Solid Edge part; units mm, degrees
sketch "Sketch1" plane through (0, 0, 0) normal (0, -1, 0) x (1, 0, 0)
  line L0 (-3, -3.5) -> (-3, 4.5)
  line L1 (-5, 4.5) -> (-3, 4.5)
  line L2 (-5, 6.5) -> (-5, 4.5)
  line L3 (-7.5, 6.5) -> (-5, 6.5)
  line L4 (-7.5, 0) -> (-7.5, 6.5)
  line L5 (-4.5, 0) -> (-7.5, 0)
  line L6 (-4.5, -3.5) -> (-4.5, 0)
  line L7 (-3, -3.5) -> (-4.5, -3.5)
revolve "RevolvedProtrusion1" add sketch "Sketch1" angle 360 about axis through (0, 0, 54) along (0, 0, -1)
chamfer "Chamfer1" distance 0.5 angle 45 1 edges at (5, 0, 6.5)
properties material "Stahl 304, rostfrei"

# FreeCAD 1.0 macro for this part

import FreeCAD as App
import Part
import Sketcher
from FreeCAD import Vector


def edges_at(feature, points):
    """Names of the edges that pass closest to the given points."""
    edges = feature.Shape.Edges
    near = lambda p: min(range(len(edges)), key=lambda i: edges[i].distToShape(Part.Vertex(*p))[0])
    return sorted({f"Edge{near(p) + 1}" for p in points})

doc = App.newDocument("Part")
body = doc.addObject("PartDesign::Body", "Body")

# Sketch on XZ plane
sketch1 = doc.addObject("Sketcher::SketchObject", "Sketch")
body.addObject(sketch1)
sketch1.AttachmentSupport = (doc.XZ_Plane, [""])
sketch1.MapMode = "FlatFace"
sketch1.addGeometry([
    Part.LineSegment(Vector(-4.5, -3.5, 0), Vector(-3, -3.5, 0)),  # 0
    Part.LineSegment(Vector(-3, -3.5, 0), Vector(-3, 4.5, 0)),  # 1
    Part.LineSegment(Vector(-3, 4.5, 0), Vector(-5, 4.5, 0)),  # 2
    Part.LineSegment(Vector(-5, 4.5, 0), Vector(-5, 6.5, 0)),  # 3
    Part.LineSegment(Vector(-5, 6.5, 0), Vector(-7.5, 6.5, 0)),  # 4
    Part.LineSegment(Vector(-7.5, 6.5, 0), Vector(-7.5, 0, 0)),  # 5
    Part.LineSegment(Vector(-7.5, 0, 0), Vector(-4.5, 0, 0)),  # 6
    Part.LineSegment(Vector(-4.5, 0, 0), Vector(-4.5, -3.5, 0)),  # 7
], False)
sketch1.addConstraint([
    Sketcher.Constraint("Coincident", 0, 2, 1, 1),
    Sketcher.Constraint("Coincident", 1, 2, 2, 1),
    Sketcher.Constraint("Coincident", 2, 2, 3, 1),
    Sketcher.Constraint("Coincident", 3, 2, 4, 1),
    Sketcher.Constraint("Coincident", 4, 2, 5, 1),
    Sketcher.Constraint("Coincident", 5, 2, 6, 1),
    Sketcher.Constraint("Coincident", 6, 2, 7, 1),
    Sketcher.Constraint("Coincident", 7, 2, 0, 1),
    Sketcher.Constraint("Horizontal", 0),
    Sketcher.Constraint("Vertical", 1),
    Sketcher.Constraint("Horizontal", 2),
    Sketcher.Constraint("Vertical", 3),
    Sketcher.Constraint("Horizontal", 4),
    Sketcher.Constraint("Vertical", 5),
    Sketcher.Constraint("Horizontal", 6),
    Sketcher.Constraint("Vertical", 7),
    Sketcher.Constraint("PointOnObject", 5, 2, -1),
    Sketcher.Constraint("Equal", 2, 3),
    Sketcher.Constraint("DistanceX", 2, 2, 2, 1, 2.0),
    Sketcher.Constraint("DistanceX", 6, 1, 6, 2, 3.0),
    Sketcher.Constraint("DistanceY", 1, 1, 1, 2, 8.0),
    Sketcher.Constraint("DistanceX", 0, 1, 0, 2, 1.5),
    Sketcher.Constraint("DistanceY", 5, 2, 5, 1, 6.5),
    Sketcher.Constraint("DistanceX", 0, 2, -1, 1, 3.0),
])
revolution = doc.addObject("PartDesign::Revolution", "Revolution")
body.addObject(revolution)
revolution.Profile = sketch1
revolution.ReferenceAxis = (sketch1, ["V_Axis"])
revolution.Angle = 360
doc.recompute()

chamfer = doc.addObject("PartDesign::Chamfer", "Chamfer")
body.addObject(chamfer)
chamfer.Base = (revolution, edges_at(revolution, [(5, 0, 6.5)]))
chamfer.Size = 0.5

doc.recompute()
